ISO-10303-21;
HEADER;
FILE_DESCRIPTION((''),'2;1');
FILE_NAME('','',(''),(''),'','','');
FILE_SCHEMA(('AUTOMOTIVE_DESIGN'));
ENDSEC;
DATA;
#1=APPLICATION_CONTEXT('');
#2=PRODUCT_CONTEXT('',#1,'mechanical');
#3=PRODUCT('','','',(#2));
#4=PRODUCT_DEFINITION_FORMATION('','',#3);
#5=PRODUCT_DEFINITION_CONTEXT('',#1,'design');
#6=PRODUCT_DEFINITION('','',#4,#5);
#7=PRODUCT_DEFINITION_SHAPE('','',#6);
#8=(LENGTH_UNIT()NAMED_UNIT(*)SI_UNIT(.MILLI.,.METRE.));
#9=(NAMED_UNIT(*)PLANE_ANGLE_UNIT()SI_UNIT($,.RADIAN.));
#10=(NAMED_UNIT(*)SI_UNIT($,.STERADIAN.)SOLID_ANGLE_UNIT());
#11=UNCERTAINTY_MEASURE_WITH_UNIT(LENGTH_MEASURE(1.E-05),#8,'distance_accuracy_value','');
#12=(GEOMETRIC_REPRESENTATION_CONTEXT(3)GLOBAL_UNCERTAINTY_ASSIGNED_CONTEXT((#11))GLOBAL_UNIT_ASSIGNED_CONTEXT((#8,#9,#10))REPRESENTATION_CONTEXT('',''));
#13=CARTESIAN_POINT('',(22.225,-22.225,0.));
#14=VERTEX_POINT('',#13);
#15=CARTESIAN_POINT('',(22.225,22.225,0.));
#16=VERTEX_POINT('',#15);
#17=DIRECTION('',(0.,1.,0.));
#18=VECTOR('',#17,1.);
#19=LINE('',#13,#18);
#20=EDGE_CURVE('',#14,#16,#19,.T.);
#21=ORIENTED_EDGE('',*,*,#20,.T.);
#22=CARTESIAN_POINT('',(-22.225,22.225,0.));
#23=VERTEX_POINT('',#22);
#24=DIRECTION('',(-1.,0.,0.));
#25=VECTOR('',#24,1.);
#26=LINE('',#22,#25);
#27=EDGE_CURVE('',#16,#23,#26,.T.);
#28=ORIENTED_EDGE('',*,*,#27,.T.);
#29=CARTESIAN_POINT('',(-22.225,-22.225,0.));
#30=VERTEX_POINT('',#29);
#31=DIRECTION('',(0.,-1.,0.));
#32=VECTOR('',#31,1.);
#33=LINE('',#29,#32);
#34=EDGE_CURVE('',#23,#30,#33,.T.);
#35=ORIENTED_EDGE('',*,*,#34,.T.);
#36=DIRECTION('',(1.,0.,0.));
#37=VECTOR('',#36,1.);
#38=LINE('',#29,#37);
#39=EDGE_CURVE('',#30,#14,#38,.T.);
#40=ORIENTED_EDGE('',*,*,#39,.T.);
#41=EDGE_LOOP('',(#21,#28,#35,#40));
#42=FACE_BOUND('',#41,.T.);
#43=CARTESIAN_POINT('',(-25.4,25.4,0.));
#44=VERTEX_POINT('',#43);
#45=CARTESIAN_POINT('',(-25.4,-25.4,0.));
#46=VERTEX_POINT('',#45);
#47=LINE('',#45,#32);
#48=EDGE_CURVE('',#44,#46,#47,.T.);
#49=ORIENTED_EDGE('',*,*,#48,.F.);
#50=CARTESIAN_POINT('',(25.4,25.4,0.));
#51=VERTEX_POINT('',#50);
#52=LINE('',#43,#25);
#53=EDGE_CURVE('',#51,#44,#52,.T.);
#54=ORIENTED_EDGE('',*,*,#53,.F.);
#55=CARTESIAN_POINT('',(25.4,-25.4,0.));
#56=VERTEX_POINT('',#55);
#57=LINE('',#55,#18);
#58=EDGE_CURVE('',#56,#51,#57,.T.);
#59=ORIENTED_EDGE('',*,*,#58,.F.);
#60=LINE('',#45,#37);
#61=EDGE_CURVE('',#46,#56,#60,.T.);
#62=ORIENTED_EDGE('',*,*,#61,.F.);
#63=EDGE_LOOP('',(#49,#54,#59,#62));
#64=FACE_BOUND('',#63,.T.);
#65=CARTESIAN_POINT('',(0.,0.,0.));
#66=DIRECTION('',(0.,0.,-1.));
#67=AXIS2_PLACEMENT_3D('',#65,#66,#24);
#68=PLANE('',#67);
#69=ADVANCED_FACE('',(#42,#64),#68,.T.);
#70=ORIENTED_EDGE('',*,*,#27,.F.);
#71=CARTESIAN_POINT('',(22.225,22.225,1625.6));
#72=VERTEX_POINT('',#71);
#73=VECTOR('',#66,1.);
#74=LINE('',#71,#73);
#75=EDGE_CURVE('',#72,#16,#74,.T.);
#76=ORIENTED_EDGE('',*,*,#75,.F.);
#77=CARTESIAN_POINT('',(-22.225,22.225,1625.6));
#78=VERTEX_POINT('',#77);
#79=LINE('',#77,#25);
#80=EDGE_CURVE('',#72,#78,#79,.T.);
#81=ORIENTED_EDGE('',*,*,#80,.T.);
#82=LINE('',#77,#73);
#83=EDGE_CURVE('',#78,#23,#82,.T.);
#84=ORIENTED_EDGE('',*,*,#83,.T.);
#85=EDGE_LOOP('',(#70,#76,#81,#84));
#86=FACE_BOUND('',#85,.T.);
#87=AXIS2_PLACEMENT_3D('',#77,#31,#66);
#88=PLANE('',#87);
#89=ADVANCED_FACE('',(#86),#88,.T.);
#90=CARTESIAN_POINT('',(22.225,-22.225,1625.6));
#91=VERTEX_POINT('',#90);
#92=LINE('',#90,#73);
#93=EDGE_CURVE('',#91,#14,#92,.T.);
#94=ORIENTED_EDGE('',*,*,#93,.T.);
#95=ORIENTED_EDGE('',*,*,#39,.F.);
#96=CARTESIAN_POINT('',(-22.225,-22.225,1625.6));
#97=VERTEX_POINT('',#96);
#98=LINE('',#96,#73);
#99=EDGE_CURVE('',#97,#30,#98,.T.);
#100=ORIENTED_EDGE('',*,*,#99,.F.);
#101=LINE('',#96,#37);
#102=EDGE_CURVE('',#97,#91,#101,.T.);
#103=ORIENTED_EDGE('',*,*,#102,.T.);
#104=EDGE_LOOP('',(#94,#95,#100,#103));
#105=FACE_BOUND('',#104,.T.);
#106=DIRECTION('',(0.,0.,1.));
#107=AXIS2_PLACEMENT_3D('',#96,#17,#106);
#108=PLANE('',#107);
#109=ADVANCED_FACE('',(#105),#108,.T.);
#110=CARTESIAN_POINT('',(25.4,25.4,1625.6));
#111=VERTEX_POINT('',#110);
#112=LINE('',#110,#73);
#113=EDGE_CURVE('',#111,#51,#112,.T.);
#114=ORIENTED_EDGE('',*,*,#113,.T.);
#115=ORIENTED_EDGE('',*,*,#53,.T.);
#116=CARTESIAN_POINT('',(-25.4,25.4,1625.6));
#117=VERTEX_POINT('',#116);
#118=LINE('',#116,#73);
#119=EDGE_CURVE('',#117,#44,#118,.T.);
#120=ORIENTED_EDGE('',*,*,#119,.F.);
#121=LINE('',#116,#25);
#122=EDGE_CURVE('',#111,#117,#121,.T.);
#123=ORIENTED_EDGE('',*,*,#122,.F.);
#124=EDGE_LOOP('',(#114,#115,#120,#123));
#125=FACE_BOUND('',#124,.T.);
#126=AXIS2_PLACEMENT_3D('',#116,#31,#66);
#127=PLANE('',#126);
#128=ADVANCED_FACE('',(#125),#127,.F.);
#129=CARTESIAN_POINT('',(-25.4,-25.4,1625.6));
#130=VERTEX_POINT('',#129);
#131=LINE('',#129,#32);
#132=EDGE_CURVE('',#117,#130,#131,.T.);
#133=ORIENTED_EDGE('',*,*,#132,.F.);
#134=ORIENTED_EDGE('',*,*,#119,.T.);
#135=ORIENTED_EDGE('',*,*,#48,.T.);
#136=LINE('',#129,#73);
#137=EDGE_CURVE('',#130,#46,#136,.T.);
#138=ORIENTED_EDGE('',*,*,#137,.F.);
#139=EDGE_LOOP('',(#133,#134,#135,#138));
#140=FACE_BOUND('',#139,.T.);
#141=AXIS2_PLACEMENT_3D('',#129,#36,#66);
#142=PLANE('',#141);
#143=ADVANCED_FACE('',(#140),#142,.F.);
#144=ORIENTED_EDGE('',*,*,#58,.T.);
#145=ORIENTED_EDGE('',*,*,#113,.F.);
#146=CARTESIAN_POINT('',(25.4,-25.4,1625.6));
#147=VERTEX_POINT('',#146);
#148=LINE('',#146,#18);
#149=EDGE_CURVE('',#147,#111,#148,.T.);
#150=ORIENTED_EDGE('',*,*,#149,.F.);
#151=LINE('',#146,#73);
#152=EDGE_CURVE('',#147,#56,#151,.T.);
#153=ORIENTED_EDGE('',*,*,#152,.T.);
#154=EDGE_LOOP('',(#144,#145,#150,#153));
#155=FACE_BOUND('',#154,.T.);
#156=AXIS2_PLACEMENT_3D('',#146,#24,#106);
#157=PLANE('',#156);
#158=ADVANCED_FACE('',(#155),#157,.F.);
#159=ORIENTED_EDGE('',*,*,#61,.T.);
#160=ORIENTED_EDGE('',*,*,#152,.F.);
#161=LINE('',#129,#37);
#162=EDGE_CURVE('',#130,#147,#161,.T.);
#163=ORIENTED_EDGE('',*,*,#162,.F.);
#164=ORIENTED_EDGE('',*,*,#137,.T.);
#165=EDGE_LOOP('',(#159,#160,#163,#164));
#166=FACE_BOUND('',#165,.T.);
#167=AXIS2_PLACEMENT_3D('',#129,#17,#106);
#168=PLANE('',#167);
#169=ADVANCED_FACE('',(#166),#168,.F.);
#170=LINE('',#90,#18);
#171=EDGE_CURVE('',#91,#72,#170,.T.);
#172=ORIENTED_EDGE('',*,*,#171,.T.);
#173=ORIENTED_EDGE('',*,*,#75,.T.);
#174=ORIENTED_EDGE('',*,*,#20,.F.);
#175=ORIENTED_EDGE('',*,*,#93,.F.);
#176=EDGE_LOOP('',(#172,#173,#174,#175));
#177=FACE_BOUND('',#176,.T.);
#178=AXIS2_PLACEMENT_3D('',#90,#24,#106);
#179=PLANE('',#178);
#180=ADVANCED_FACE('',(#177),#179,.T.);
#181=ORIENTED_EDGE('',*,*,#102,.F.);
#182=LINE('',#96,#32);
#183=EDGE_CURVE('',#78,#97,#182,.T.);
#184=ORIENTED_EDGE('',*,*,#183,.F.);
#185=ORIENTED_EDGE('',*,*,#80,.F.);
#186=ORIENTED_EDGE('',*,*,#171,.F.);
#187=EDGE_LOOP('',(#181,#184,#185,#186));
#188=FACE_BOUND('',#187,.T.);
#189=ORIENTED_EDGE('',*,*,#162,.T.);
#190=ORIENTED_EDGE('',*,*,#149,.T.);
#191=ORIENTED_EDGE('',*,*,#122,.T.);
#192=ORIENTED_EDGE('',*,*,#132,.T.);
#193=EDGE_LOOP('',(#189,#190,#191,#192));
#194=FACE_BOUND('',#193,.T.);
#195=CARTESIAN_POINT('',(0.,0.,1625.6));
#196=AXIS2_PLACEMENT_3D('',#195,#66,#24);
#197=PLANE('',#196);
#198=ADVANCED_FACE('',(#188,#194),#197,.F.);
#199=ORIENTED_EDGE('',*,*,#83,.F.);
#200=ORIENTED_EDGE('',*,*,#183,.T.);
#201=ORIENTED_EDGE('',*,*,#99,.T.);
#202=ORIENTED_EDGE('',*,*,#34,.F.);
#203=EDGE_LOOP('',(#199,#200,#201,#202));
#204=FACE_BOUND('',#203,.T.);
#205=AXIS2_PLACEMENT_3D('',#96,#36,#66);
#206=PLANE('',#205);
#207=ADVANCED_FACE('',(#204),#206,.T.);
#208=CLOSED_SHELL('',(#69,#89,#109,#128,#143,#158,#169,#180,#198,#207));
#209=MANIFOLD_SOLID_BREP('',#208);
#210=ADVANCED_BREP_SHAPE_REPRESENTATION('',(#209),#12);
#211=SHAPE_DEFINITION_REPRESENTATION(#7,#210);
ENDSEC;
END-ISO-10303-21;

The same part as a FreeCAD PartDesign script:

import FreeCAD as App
import Part
import Sketcher
Q = App.Units.Quantity


def add_polygon(sketch, points):
    """Adds a closed chain of lines whose ends are joined by coincident constraints."""
    first, n = sketch.GeometryCount, len(points)
    for a, b in zip(points, points[1:] + points[:1]):
        sketch.addGeometry(Part.LineSegment(App.Vector(*a, 0), App.Vector(*b, 0)), False)
    for i in range(n):
        sketch.addConstraint(Sketcher.Constraint("Coincident", first + i, 2, first + (i + 1) % n, 1))

doc = App.newDocument("Part")
body = doc.addObject("PartDesign::Body", "Body")

# Sketch on XY plane
sketch1 = body.newObject("Sketcher::SketchObject", "Sketch")
sketch1.AttachmentSupport = (doc.getObject("XY_Plane"), [""])
sketch1.MapMode = "FlatFace"
add_polygon(sketch1, [(-25, 25), (-25, -25), (25, -25), (25, 25)])  # lines 0-3
add_polygon(sketch1, [(22, -22), (-22, -22), (-22, 22), (22, 22)])  # lines 4-7
sketch1.addConstraint(Sketcher.Constraint("Vertical", 0))
sketch1.addConstraint(Sketcher.Constraint("Horizontal", 1))
sketch1.addConstraint(Sketcher.Constraint("Vertical", 2))
sketch1.addConstraint(Sketcher.Constraint("Horizontal", 3))
sketch1.addConstraint(Sketcher.Constraint("Horizontal", 4))
sketch1.addConstraint(Sketcher.Constraint("Vertical", 5))
sketch1.addConstraint(Sketcher.Constraint("Horizontal", 6))
sketch1.addConstraint(Sketcher.Constraint("Vertical", 7))
sketch1.addConstraint(Sketcher.Constraint("Symmetric", 0, 2, 2, 2, -1, 1))
sketch1.addConstraint(Sketcher.Constraint("Symmetric", 4, 2, 6, 2, -1, 1))
sketch1.addConstraint(Sketcher.Constraint("Equal", 3, 0))
sketch1.addConstraint(Sketcher.Constraint("Equal", 6, 5))
sketch1.addConstraint(Sketcher.Constraint("DistanceX", 1, 1, 1, 2, Q("2 in")))
sketch1.addConstraint(Sketcher.Constraint("DistanceX", 4, 2, 4, 1, Q("1.75 in")))
pad1 = body.newObject("PartDesign::Pad", "Pad")
pad1.Profile = sketch1
pad1.Length = Q("64 in")

doc.recompute()
